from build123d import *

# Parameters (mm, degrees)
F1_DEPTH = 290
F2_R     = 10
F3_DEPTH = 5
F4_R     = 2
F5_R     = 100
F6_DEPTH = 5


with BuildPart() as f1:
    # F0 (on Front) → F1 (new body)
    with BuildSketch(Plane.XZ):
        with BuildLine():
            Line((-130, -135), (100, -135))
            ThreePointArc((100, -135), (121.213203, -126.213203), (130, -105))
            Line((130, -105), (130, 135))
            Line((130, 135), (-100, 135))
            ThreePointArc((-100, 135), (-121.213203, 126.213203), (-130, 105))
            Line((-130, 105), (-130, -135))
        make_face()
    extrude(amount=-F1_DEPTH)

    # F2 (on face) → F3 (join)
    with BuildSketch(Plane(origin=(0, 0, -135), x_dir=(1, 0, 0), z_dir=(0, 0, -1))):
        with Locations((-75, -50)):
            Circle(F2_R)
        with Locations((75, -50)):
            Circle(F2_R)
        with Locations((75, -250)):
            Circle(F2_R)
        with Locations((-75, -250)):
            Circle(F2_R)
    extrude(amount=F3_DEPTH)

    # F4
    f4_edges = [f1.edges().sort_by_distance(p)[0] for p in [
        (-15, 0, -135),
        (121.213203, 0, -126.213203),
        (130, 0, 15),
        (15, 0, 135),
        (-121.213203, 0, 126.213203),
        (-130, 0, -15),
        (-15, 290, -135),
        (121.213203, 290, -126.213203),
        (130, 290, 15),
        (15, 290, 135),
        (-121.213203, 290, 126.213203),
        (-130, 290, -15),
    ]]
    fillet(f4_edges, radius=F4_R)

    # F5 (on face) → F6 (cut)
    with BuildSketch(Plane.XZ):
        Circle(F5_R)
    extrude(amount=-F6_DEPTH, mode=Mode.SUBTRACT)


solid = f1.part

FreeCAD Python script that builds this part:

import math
import FreeCAD as App
import Part
import Sketcher
Q = App.Units.Quantity


def edges_at(feature, points):
    """Names of the edges that pass closest to the given points."""
    edges = feature.Shape.Edges
    near = lambda p: min(range(len(edges)), key=lambda i: edges[i].distToShape(Part.Vertex(*p))[0])
    return sorted({f"Edge{near(p) + 1}" for p in points})

doc = App.newDocument("Part")
body = doc.addObject("PartDesign::Body", "Body")

# Sketch on XZ plane
sketch1 = body.newObject("Sketcher::SketchObject", "Sketch")
sketch1.AttachmentSupport = (doc.getObject("XZ_Plane"), [""])
sketch1.MapMode = "FlatFace"
sketch1.addGeometry([
    Part.LineSegment(App.Vector(-130, -135, 0), App.Vector(100, -135, 0)),  # 0
    Part.ArcOfCircle(Part.Circle(App.Vector(99.999999, -104.999999, 0), App.Vector(0, 0, 1), 30.000001), math.radians(-89.999997), math.radians(-0.000003)),  # 1
    Part.LineSegment(App.Vector(130, -105, 0), App.Vector(130, 135, 0)),  # 2
    Part.LineSegment(App.Vector(130, 135, 0), App.Vector(-100, 135, 0)),  # 3
    Part.ArcOfCircle(Part.Circle(App.Vector(-99.999999, 104.999999, 0), App.Vector(0, 0, 1), 30.000001), math.radians(90.000003), math.radians(179.999997)),  # 4
    Part.LineSegment(App.Vector(-130, 105, 0), App.Vector(-130, -135, 0)),  # 5
], False)
sketch1.addConstraint([
    Sketcher.Constraint("Tangent", 0, 2, 1, 1),
    Sketcher.Constraint("Tangent", 1, 2, 2, 1),
    Sketcher.Constraint("Coincident", 2, 2, 3, 1),
    Sketcher.Constraint("Tangent", 3, 2, 4, 1),
    Sketcher.Constraint("Tangent", 4, 2, 5, 1),
    Sketcher.Constraint("Coincident", 5, 2, 0, 1),
    Sketcher.Constraint("Horizontal", 0),
    Sketcher.Constraint("Vertical", 2),
    Sketcher.Constraint("Horizontal", 3),
    Sketcher.Constraint("Vertical", 5),
    Sketcher.Constraint("Equal", 1, 4),
    Sketcher.Constraint("Symmetric", 1, 3, 4, 3, -1, 1),
    Sketcher.Constraint("Radius", 1, Q("30.000001 mm")),
    Sketcher.Constraint("DistanceX", 0, 1, 0, 2, Q("230 mm")),
    Sketcher.Constraint("DistanceY", 2, 1, 2, 2, Q("240 mm")),
])
pad1 = body.newObject("PartDesign::Pad", "Pad")
pad1.Profile = sketch1
pad1.Length = 290
pad1.Reversed = True

# Sketch on XY plane
sketch2 = body.newObject("Sketcher::SketchObject", "Sketch001")
sketch2.AttachmentSupport = (doc.getObject("XY_Plane"), [""])
sketch2.MapMode = "FlatFace"
sketch2.AttachmentOffset = App.Placement(App.Vector(0, 0, -135), App.Rotation())
sketch2.addGeometry([
    Part.Circle(App.Vector(-75, 50, 0), App.Vector(0, 0, 1), 10),
    Part.Circle(App.Vector(75, 50, 0), App.Vector(0, 0, 1), 10),
    Part.Circle(App.Vector(75, 250, 0), App.Vector(0, 0, 1), 10),
    Part.Circle(App.Vector(-75, 250, 0), App.Vector(0, 0, 1), 10),
], False)
sketch2.addConstraint([
    Sketcher.Constraint("Equal", 0, 1),
    Sketcher.Constraint("Equal", 1, 2),
    Sketcher.Constraint("Equal", 2, 3),
    Sketcher.Constraint("Symmetric", 0, 3, 1, 3, -2),
    Sketcher.Constraint("Symmetric", 2, 3, 3, 3, -2),
    Sketcher.Constraint("Vertical", 1, 3, 2, 3),
    Sketcher.Constraint("Diameter", 0, Q("20 mm")),
    Sketcher.Constraint("DistanceX", 0, 3, -1, 1, Q("75 mm")),
    Sketcher.Constraint("DistanceY", -1, 1, 0, 3, Q("50 mm")),
    Sketcher.Constraint("DistanceY", -1, 1, 2, 3, Q("250 mm")),
])
pad2 = body.newObject("PartDesign::Pad", "Pad001")
pad2.Profile = sketch2
pad2.Length = 5
pad2.Reversed = True
doc.recompute()

fillet = body.newObject("PartDesign::Fillet", "Fillet")
fillet.Base = (pad2, edges_at(pad2, [
    (-15, 0, -135),
    (121.213, 0, -126.213),
    (130, 0, 15),
    (15, 0, 135),
    (-121.213, 0, 126.213),
    (-130, 0, -15),
    (-15, 290, -135),
    (121.213, 290, -126.213),
    (130, 290, 15),
    (15, 290, 135),
    (-121.213, 290, 126.213),
    (-130, 290, -15),
]))
fillet.Radius = 2

# Sketch on XZ plane
sketch3 = body.newObject("Sketcher::SketchObject", "Sketch002")
sketch3.AttachmentSupport = (doc.getObject("XZ_Plane"), [""])
sketch3.MapMode = "FlatFace"
sketch3.addGeometry(Part.Circle(App.Vector(0, 0, 0), App.Vector(0, 0, 1), 100), False)
sketch3.addConstraint([
    Sketcher.Constraint("Coincident", 0, 3, -1, 1),
    Sketcher.Constraint("Diameter", 0, Q("200 mm")),
])
pocket1 = body.newObject("PartDesign::Pocket", "Pocket")
pocket1.Profile = sketch3
pocket1.Length = 5

doc.recompute()
